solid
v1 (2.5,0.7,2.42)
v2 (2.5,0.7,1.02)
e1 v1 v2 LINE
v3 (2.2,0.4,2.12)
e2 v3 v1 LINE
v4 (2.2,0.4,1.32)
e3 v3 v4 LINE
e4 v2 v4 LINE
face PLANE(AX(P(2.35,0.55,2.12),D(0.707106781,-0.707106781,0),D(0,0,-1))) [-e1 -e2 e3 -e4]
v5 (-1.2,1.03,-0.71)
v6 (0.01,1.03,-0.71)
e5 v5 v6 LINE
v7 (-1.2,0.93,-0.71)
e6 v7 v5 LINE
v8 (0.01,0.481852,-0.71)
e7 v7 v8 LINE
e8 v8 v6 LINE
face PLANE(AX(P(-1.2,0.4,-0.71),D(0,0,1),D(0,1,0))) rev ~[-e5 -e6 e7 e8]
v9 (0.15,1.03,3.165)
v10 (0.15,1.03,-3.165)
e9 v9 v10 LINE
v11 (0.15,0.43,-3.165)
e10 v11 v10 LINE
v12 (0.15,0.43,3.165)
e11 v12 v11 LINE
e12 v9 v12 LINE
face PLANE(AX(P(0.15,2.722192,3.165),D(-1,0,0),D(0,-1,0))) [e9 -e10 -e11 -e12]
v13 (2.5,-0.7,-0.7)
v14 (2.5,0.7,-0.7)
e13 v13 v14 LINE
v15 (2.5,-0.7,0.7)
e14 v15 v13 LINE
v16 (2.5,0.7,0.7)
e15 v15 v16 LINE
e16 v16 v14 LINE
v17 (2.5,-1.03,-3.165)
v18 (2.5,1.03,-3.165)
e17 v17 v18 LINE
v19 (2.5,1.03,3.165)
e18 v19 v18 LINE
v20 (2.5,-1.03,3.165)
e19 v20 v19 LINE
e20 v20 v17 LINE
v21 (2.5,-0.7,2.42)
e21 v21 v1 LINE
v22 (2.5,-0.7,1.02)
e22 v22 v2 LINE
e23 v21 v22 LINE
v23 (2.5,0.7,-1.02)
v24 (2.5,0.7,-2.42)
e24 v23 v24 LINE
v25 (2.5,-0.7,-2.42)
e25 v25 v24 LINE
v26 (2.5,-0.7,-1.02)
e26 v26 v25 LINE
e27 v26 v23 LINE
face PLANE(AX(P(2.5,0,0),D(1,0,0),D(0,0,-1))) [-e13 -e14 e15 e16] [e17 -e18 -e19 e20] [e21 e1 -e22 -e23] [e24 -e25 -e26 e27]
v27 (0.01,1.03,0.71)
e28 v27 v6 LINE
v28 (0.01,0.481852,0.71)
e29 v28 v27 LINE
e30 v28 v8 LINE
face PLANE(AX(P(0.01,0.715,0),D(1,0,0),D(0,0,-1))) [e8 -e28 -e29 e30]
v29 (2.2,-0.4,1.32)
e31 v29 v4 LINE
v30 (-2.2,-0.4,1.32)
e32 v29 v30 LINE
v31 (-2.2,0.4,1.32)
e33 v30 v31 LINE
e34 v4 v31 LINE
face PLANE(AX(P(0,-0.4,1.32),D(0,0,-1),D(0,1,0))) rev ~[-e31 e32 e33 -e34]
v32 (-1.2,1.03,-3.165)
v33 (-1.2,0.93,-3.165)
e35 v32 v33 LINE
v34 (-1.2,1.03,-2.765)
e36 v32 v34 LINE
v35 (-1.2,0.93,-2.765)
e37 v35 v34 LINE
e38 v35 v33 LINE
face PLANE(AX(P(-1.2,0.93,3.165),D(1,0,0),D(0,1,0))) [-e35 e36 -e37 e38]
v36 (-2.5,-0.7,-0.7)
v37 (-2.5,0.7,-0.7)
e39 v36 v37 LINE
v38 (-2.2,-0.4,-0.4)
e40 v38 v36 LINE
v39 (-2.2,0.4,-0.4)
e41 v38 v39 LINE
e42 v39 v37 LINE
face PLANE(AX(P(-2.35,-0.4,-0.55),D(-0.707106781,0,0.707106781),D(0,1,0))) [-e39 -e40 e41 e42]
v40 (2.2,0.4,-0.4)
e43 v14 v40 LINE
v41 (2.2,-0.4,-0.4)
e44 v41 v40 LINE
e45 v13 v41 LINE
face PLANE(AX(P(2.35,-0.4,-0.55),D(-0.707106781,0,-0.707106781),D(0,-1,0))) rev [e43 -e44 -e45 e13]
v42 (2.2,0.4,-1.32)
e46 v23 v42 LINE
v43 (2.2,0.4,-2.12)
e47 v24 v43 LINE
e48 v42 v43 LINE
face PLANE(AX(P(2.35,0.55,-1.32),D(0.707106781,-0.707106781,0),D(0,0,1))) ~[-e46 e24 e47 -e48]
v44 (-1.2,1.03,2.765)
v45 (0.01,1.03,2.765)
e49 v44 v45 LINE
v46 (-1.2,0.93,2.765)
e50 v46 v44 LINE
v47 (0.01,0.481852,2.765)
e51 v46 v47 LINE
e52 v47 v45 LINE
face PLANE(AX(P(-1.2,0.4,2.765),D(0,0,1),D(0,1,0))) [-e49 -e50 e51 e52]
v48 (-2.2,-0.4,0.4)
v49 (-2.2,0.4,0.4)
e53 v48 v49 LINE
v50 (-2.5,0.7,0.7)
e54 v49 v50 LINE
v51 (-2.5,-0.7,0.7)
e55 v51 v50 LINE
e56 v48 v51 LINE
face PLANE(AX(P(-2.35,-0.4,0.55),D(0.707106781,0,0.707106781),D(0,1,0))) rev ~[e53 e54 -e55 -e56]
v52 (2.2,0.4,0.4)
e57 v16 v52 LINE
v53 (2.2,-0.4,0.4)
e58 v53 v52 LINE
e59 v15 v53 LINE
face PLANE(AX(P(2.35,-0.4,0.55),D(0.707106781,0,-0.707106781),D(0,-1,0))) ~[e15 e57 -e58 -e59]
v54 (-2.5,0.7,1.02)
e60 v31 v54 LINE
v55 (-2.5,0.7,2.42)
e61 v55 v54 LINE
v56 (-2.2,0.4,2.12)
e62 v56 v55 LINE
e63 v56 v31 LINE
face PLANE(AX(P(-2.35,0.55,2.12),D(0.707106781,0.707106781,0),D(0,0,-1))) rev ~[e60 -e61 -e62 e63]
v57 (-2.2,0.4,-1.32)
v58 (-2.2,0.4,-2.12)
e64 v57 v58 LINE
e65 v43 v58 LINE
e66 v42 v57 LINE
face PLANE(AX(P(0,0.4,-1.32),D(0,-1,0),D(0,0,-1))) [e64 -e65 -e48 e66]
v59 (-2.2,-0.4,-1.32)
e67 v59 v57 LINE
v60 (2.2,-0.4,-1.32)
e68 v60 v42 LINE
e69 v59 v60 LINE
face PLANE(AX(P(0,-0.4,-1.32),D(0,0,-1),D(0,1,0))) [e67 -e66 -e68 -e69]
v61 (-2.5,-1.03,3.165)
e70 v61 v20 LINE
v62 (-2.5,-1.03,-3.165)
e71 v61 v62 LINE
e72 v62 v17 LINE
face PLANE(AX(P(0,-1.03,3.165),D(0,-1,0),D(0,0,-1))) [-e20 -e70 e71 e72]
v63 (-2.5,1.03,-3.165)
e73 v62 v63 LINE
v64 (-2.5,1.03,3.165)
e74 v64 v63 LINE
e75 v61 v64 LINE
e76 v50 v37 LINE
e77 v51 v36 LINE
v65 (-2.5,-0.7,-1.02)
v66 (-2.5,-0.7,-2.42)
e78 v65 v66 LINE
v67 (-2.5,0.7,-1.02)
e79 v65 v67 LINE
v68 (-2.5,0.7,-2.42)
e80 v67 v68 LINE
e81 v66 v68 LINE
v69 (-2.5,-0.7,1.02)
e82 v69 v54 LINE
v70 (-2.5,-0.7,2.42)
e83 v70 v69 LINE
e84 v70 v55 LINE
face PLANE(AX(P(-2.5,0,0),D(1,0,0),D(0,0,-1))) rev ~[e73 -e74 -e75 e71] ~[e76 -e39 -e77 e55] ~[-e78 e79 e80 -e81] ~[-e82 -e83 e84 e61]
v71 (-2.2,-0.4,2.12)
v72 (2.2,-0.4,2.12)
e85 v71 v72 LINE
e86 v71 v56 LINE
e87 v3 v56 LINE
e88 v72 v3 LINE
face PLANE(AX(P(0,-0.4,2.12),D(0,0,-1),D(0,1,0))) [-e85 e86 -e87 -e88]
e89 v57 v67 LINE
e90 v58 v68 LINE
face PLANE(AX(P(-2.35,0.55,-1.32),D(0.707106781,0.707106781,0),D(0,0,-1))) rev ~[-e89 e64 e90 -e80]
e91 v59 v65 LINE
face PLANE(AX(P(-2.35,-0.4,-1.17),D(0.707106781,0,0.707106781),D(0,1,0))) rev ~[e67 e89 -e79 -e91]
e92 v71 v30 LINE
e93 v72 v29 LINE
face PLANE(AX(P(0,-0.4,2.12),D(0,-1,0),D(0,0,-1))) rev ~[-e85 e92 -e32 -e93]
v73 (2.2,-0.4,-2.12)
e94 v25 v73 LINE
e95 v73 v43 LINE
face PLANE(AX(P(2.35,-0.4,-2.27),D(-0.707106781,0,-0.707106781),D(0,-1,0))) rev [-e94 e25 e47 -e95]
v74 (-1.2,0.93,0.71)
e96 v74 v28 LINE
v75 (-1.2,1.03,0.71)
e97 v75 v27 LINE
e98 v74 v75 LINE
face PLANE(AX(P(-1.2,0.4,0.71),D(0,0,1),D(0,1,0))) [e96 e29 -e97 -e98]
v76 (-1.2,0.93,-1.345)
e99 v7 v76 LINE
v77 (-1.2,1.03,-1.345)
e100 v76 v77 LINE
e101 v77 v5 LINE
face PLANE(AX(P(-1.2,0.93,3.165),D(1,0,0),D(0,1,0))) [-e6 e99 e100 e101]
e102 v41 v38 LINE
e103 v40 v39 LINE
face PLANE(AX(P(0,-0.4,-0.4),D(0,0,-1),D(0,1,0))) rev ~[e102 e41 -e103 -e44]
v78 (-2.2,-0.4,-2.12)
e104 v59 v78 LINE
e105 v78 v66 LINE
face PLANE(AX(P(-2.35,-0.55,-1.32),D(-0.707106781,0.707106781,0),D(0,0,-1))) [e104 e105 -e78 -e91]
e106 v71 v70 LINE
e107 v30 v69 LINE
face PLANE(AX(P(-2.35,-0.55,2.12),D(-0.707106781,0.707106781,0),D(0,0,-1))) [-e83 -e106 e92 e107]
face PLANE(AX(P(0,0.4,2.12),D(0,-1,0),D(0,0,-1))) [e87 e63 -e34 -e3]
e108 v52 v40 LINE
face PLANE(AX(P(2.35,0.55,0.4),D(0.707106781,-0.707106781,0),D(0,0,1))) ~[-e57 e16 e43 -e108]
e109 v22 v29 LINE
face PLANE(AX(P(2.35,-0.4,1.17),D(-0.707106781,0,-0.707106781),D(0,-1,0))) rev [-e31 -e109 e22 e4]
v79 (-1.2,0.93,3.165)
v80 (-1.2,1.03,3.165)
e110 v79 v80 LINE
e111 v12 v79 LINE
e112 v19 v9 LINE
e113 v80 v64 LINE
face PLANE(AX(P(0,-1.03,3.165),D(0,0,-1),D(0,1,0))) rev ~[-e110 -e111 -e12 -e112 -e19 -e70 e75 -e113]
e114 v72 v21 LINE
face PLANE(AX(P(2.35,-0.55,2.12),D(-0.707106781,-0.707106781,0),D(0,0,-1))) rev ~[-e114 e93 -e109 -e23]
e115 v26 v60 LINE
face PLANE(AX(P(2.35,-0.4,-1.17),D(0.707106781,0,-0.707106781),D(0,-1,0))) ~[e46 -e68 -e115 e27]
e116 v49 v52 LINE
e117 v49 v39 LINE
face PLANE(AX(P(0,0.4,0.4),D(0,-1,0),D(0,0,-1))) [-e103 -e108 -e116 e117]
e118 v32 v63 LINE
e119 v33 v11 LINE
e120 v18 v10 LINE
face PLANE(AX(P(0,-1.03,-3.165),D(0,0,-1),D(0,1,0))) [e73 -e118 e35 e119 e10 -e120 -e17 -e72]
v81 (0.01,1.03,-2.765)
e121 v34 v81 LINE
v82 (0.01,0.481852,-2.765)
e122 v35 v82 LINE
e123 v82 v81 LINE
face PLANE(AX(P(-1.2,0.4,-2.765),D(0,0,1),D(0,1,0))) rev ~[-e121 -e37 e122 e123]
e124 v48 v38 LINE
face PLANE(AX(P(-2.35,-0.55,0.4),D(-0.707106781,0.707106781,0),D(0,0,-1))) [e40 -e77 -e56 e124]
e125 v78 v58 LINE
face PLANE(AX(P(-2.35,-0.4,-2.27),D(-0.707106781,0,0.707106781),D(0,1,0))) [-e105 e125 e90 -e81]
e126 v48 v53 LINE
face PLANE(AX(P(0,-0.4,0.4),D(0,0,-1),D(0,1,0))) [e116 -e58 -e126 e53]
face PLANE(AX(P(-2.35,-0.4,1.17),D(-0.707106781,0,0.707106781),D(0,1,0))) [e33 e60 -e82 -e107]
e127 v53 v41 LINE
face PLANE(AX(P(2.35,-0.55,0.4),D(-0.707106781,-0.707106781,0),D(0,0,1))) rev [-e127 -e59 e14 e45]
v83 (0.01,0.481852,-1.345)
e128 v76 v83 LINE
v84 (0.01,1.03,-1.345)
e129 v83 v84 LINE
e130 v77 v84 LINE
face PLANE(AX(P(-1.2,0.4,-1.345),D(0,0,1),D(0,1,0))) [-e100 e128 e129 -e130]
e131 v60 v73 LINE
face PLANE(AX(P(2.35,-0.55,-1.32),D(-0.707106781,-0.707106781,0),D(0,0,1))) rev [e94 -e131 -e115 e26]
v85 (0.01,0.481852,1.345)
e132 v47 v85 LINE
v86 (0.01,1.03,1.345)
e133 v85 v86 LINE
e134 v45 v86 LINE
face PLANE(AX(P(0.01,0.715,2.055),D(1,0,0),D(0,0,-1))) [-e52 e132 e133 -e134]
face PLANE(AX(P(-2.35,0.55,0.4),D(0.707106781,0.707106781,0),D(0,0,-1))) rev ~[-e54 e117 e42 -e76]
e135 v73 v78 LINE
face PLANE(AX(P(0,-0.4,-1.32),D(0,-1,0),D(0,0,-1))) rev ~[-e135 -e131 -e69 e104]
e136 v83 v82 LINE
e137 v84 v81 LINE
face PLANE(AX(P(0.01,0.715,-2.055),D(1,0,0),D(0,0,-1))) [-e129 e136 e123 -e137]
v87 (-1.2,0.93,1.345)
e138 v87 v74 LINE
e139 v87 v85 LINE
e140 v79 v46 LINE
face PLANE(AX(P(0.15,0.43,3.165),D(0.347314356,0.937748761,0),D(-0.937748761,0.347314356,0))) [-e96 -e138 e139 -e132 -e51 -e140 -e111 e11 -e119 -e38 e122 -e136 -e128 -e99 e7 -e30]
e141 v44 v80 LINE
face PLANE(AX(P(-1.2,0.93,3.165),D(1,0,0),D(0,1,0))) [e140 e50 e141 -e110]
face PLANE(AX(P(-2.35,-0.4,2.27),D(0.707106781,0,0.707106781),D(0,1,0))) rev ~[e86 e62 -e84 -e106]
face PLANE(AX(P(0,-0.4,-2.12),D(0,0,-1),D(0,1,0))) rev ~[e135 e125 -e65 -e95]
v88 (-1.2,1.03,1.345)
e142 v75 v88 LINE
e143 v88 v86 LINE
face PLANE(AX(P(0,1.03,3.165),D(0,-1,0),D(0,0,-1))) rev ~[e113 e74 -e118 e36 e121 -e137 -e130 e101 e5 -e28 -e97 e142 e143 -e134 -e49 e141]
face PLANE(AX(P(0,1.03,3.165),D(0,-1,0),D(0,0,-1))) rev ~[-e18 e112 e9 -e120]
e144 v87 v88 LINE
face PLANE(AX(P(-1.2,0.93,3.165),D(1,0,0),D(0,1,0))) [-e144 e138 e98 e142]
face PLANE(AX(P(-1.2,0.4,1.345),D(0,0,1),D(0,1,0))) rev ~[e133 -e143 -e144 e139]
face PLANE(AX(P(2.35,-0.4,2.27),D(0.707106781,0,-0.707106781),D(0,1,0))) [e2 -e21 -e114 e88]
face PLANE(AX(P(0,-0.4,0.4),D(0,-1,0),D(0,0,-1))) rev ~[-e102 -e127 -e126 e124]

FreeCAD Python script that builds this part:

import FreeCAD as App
import Part
import Sketcher

V = App.Vector


def edges_at(feature, points):
    """Names of the edges that pass closest to the given points."""
    edges = feature.Shape.Edges
    near = lambda p: min(range(len(edges)), key=lambda i: edges[i].distToShape(Part.Vertex(*p))[0])
    return sorted({f"Edge{near(p) + 1}" for p in points})

doc = App.newDocument("Part")
body = doc.addObject("PartDesign::Body", "Body")

# Sketch on YZ plane
sketch1 = body.newObject("Sketcher::SketchObject", "Sketch")
sketch1.AttachmentSupport = (doc.getObject("YZ_Plane"), [""])
sketch1.MapMode = "FlatFace"
sketch1.addGeometry(Part.LineSegment(V(1, 3.2, 0), V(-1, 3.2, 0)), False)
sketch1.addGeometry(Part.LineSegment(V(-1, 3.2, 0), V(-1, -3.2, 0)), False)
sketch1.addGeometry(Part.LineSegment(V(-1, -3.2, 0), V(1, -3.2, 0)), False)
sketch1.addGeometry(Part.LineSegment(V(1, -3.2, 0), V(1, 3.2, 0)), False)
sketch1.addGeometry(Part.LineSegment(V(-0.4, 1.3, 0), V(-0.4, 2.1, 0)), False)
sketch1.addGeometry(Part.LineSegment(V(-0.4, 2.1, 0), V(0.4, 2.1, 0)), False)
sketch1.addGeometry(Part.LineSegment(V(0.4, 2.1, 0), V(0.4, 1.3, 0)), False)
sketch1.addGeometry(Part.LineSegment(V(0.4, 1.3, 0), V(-0.4, 1.3, 0)), False)
sketch1.addGeometry(Part.LineSegment(V(-0.4, -0.4, 0), V(-0.4, 0.4, 0)), False)
sketch1.addGeometry(Part.LineSegment(V(-0.4, 0.4, 0), V(0.4, 0.4, 0)), False)
sketch1.addGeometry(Part.LineSegment(V(0.4, 0.4, 0), V(0.4, -0.4, 0)), False)
sketch1.addGeometry(Part.LineSegment(V(0.4, -0.4, 0), V(-0.4, -0.4, 0)), False)
sketch1.addGeometry(Part.LineSegment(V(-0.4, -2.1, 0), V(-0.4, -1.3, 0)), False)
sketch1.addGeometry(Part.LineSegment(V(-0.4, -1.3, 0), V(0.4, -1.3, 0)), False)
sketch1.addGeometry(Part.LineSegment(V(0.4, -1.3, 0), V(0.4, -2.1, 0)), False)
sketch1.addGeometry(Part.LineSegment(V(0.4, -2.1, 0), V(-0.4, -2.1, 0)), False)
sketch1.addConstraint(Sketcher.Constraint("Coincident", 0, 2, 1, 1))
sketch1.addConstraint(Sketcher.Constraint("Coincident", 1, 2, 2, 1))
sketch1.addConstraint(Sketcher.Constraint("Coincident", 2, 2, 3, 1))
sketch1.addConstraint(Sketcher.Constraint("Coincident", 3, 2, 0, 1))
sketch1.addConstraint(Sketcher.Constraint("Coincident", 4, 2, 5, 1))
sketch1.addConstraint(Sketcher.Constraint("Coincident", 5, 2, 6, 1))
sketch1.addConstraint(Sketcher.Constraint("Coincident", 6, 2, 7, 1))
sketch1.addConstraint(Sketcher.Constraint("Coincident", 7, 2, 4, 1))
sketch1.addConstraint(Sketcher.Constraint("Coincident", 8, 2, 9, 1))
sketch1.addConstraint(Sketcher.Constraint("Coincident", 9, 2, 10, 1))
sketch1.addConstraint(Sketcher.Constraint("Coincident", 10, 2, 11, 1))
sketch1.addConstraint(Sketcher.Constraint("Coincident", 11, 2, 8, 1))
sketch1.addConstraint(Sketcher.Constraint("Coincident", 12, 2, 13, 1))
sketch1.addConstraint(Sketcher.Constraint("Coincident", 13, 2, 14, 1))
sketch1.addConstraint(Sketcher.Constraint("Coincident", 14, 2, 15, 1))
sketch1.addConstraint(Sketcher.Constraint("Coincident", 15, 2, 12, 1))
sketch1.addConstraint(Sketcher.Constraint("Horizontal", 0))
sketch1.addConstraint(Sketcher.Constraint("Vertical", 1))
sketch1.addConstraint(Sketcher.Constraint("Horizontal", 2))
sketch1.addConstraint(Sketcher.Constraint("Vertical", 3))
sketch1.addConstraint(Sketcher.Constraint("Vertical", 4))
sketch1.addConstraint(Sketcher.Constraint("Horizontal", 5))
sketch1.addConstraint(Sketcher.Constraint("Vertical", 6))
sketch1.addConstraint(Sketcher.Constraint("Horizontal", 7))
sketch1.addConstraint(Sketcher.Constraint("Vertical", 8))
sketch1.addConstraint(Sketcher.Constraint("Horizontal", 9))
sketch1.addConstraint(Sketcher.Constraint("Vertical", 10))
sketch1.addConstraint(Sketcher.Constraint("Horizontal", 11))
sketch1.addConstraint(Sketcher.Constraint("Vertical", 12))
sketch1.addConstraint(Sketcher.Constraint("Horizontal", 13))
sketch1.addConstraint(Sketcher.Constraint("Vertical", 14))
sketch1.addConstraint(Sketcher.Constraint("Horizontal", 15))
sketch1.addConstraint(Sketcher.Constraint("Symmetric", 0, 2, 2, 2, -1, 1))
sketch1.addConstraint(Sketcher.Constraint("Symmetric", 8, 2, 10, 2, -1, 1))
sketch1.addConstraint(Sketcher.Constraint("Symmetric", 6, 2, 12, 2, -1, 1))
sketch1.addConstraint(Sketcher.Constraint("Symmetric", 4, 2, 14, 2, -1, 1))
sketch1.addConstraint(Sketcher.Constraint("Vertical", 7, 2, 8, 2))
sketch1.addConstraint(Sketcher.Constraint("Vertical", 6, 2, 9, 2))
sketch1.addConstraint(Sketcher.Constraint("Equal", 15, 4))
sketch1.addConstraint(Sketcher.Constraint("Equal", 6, 8))
sketch1.addConstraint(Sketcher.Constraint("DistanceX", 5, 1, 5, 2, 0.8))
sketch1.addConstraint(Sketcher.Constraint("DistanceX", 0, 2, 0, 1, 2.06))
sketch1.addConstraint(Sketcher.Constraint("DistanceY", 1, 2, 1, 1, 6.33))
sketch1.addConstraint(Sketcher.Constraint("DistanceY", -1, 1, 4, 2, 2.12))
pad1 = body.newObject("PartDesign::Pad", "Pad")
pad1.Profile = sketch1
pad1.Length = 5
pad1.Midplane = True

# Sketch on XY plane
sketch2 = body.newObject("Sketcher::SketchObject", "Sketch001")
sketch2.AttachmentSupport = (doc.getObject("XY_Plane"), [""])
sketch2.MapMode = "FlatFace"
sketch2.AttachmentOffset = App.Placement(V(0, 0, 3.165), App.Rotation())
sketch2.addGeometry(Part.LineSegment(V(0.1, 2.7, 0), V(-1.2, 2.7, 0)), False)
sketch2.addGeometry(Part.LineSegment(V(-1.2, 2.7, 0), V(-1.2, 0.9, 0)), False)
sketch2.addGeometry(Part.LineSegment(V(-1.2, 0.9, 0), V(0.1, 0.4, 0)), False)
sketch2.addGeometry(Part.LineSegment(V(0.1, 0.4, 0), V(0.1, 2.7, 0)), False)
sketch2.addConstraint(Sketcher.Constraint("Coincident", 0, 2, 1, 1))
sketch2.addConstraint(Sketcher.Constraint("Coincident", 1, 2, 2, 1))
sketch2.addConstraint(Sketcher.Constraint("Coincident", 2, 2, 3, 1))
sketch2.addConstraint(Sketcher.Constraint("Coincident", 3, 2, 0, 1))
sketch2.addConstraint(Sketcher.Constraint("Horizontal", 0))
sketch2.addConstraint(Sketcher.Constraint("Vertical", 1))
sketch2.addConstraint(Sketcher.Constraint("Vertical", 3))
sketch2.addConstraint(Sketcher.Constraint("DistanceX", 0, 2, 0, 1, 1.35))
sketch2.addConstraint(Sketcher.Constraint("DistanceX", 0, 2, -1, 1, 1.2))
sketch2.addConstraint(Sketcher.Constraint("DistanceY", 2, 2, 1, 2, 0.5))
sketch2.addConstraint(Sketcher.Constraint("DistanceY", -1, 1, 1, 2, 0.93))
sketch2.addConstraint(Sketcher.Constraint("DistanceY", 1, 2, 1, 1, 1.792192))
pocket1 = body.newObject("PartDesign::Pocket", "Pocket")
pocket1.Profile = sketch2
pocket1.Length = 7.25

# Sketch on YZ plane
sketch3 = body.newObject("Sketcher::SketchObject", "Sketch002")
sketch3.AttachmentSupport = (doc.getObject("YZ_Plane"), [""])
sketch3.MapMode = "FlatFace"
sketch3.AttachmentOffset = App.Placement(V(0, 0, -1.2), App.Rotation())
sketch3.addGeometry(Part.LineSegment(V(1, 2.8, 0), V(0.4, 2.8, 0)), False)
sketch3.addGeometry(Part.LineSegment(V(0.4, 2.8, 0), V(0.4, 1.3, 0)), False)
sketch3.addGeometry(Part.LineSegment(V(0.4, 1.3, 0), V(1, 1.3, 0)), False)
sketch3.addGeometry(Part.LineSegment(V(1, 1.3, 0), V(1, 2.8, 0)), False)
sketch3.addGeometry(Part.LineSegment(V(1, 0.7, 0), V(0.4, 0.7, 0)), False)
sketch3.addGeometry(Part.LineSegment(V(0.4, 0.7, 0), V(0.4, -0.7, 0)), False)
sketch3.addGeometry(Part.LineSegment(V(0.4, -0.7, 0), V(1, -0.7, 0)), False)
sketch3.addGeometry(Part.LineSegment(V(1, -0.7, 0), V(1, 0.7, 0)), False)
sketch3.addGeometry(Part.LineSegment(V(1, -1.3, 0), V(0.4, -1.3, 0)), False)
sketch3.addGeometry(Part.LineSegment(V(0.4, -1.3, 0), V(0.4, -2.8, 0)), False)
sketch3.addGeometry(Part.LineSegment(V(0.4, -2.8, 0), V(1, -2.8, 0)), False)
sketch3.addGeometry(Part.LineSegment(V(1, -2.8, 0), V(1, -1.3, 0)), False)
sketch3.addConstraint(Sketcher.Constraint("Coincident", 0, 2, 1, 1))
sketch3.addConstraint(Sketcher.Constraint("Coincident", 1, 2, 2, 1))
sketch3.addConstraint(Sketcher.Constraint("Coincident", 2, 2, 3, 1))
sketch3.addConstraint(Sketcher.Constraint("Coincident", 3, 2, 0, 1))
sketch3.addConstraint(Sketcher.Constraint("Coincident", 4, 2, 5, 1))
sketch3.addConstraint(Sketcher.Constraint("Coincident", 5, 2, 6, 1))
sketch3.addConstraint(Sketcher.Constraint("Coincident", 6, 2, 7, 1))
sketch3.addConstraint(Sketcher.Constraint("Coincident", 7, 2, 4, 1))
sketch3.addConstraint(Sketcher.Constraint("Coincident", 8, 2, 9, 1))
sketch3.addConstraint(Sketcher.Constraint("Coincident", 9, 2, 10, 1))
sketch3.addConstraint(Sketcher.Constraint("Coincident", 10, 2, 11, 1))
sketch3.addConstraint(Sketcher.Constraint("Coincident", 11, 2, 8, 1))
sketch3.addConstraint(Sketcher.Constraint("Horizontal", 0))
sketch3.addConstraint(Sketcher.Constraint("Vertical", 1))
sketch3.addConstraint(Sketcher.Constraint("Horizontal", 2))
sketch3.addConstraint(Sketcher.Constraint("Vertical", 3))
sketch3.addConstraint(Sketcher.Constraint("Horizontal", 4))
sketch3.addConstraint(Sketcher.Constraint("Vertical", 5))
sketch3.addConstraint(Sketcher.Constraint("Horizontal", 6))
sketch3.addConstraint(Sketcher.Constraint("Vertical", 7))
sketch3.addConstraint(Sketcher.Constraint("Horizontal", 8))
sketch3.addConstraint(Sketcher.Constraint("Vertical", 9))
sketch3.addConstraint(Sketcher.Constraint("Horizontal", 10))
sketch3.addConstraint(Sketcher.Constraint("Vertical", 11))
sketch3.addConstraint(Sketcher.Constraint("Symmetric", 1, 2, 8, 2, -1))
sketch3.addConstraint(Sketcher.Constraint("Symmetric", 3, 2, 10, 2, -1))
sketch3.addConstraint(Sketcher.Constraint("Vertical", 1, 2, 4, 2))
sketch3.addConstraint(Sketcher.Constraint("Vertical", 3, 2, 6, 2))
sketch3.addConstraint(Sketcher.Constraint("Equal", 3, 5))
sketch3.addConstraint(Sketcher.Constraint("DistanceX", 0, 2, 0, 1, 0.63))
sketch3.addConstraint(Sketcher.Constraint("DistanceY", 1, 2, 1, 1, 1.42))
sketch3.addConstraint(Sketcher.Constraint("DistanceX", -1, 1, 0, 2, 0.4))
sketch3.addConstraint(Sketcher.Constraint("DistanceY", -1, 1, 4, 2, 0.71))
sketch3.addConstraint(Sketcher.Constraint("DistanceY", 8, 2, 1, 2, 2.69))
pad2 = body.newObject("PartDesign::Pad", "Pad001")
pad2.Profile = sketch3
pad2.Length = 1.21
doc.recompute()

chamfer = body.newObject("PartDesign::Chamfer", "Chamfer")
chamfer.Base = (pad2, edges_at(pad2, [
    (-2.5, 0, -0.4),
    (-2.5, 0.4, 0),
    (-2.5, 0, 0.4),
    (-2.5, -0.4, 0),
    (2.5, 0, -0.4),
    (2.5, 0.4, 0),
    (2.5, 0, 0.4),
    (2.5, -0.4, 0),
    (-2.5, 0, 1.32),
    (-2.5, 0.4, 1.72),
    (-2.5, 0, 2.12),
    (-2.5, -0.4, 1.72),
    (2.5, 0, 1.32),
    (2.5, 0.4, 1.72),
    (2.5, 0, 2.12),
    (2.5, -0.4, 1.72),
    (-2.5, 0, -2.12),
    (-2.5, 0.4, -1.72),
    (-2.5, 0, -1.32),
    (-2.5, -0.4, -1.72),
    (2.5, 0, -2.12),
    (2.5, 0.4, -1.72),
    (2.5, 0, -1.32),
    (2.5, -0.4, -1.72),
]))
chamfer.Size = 0.3

doc.recompute()
